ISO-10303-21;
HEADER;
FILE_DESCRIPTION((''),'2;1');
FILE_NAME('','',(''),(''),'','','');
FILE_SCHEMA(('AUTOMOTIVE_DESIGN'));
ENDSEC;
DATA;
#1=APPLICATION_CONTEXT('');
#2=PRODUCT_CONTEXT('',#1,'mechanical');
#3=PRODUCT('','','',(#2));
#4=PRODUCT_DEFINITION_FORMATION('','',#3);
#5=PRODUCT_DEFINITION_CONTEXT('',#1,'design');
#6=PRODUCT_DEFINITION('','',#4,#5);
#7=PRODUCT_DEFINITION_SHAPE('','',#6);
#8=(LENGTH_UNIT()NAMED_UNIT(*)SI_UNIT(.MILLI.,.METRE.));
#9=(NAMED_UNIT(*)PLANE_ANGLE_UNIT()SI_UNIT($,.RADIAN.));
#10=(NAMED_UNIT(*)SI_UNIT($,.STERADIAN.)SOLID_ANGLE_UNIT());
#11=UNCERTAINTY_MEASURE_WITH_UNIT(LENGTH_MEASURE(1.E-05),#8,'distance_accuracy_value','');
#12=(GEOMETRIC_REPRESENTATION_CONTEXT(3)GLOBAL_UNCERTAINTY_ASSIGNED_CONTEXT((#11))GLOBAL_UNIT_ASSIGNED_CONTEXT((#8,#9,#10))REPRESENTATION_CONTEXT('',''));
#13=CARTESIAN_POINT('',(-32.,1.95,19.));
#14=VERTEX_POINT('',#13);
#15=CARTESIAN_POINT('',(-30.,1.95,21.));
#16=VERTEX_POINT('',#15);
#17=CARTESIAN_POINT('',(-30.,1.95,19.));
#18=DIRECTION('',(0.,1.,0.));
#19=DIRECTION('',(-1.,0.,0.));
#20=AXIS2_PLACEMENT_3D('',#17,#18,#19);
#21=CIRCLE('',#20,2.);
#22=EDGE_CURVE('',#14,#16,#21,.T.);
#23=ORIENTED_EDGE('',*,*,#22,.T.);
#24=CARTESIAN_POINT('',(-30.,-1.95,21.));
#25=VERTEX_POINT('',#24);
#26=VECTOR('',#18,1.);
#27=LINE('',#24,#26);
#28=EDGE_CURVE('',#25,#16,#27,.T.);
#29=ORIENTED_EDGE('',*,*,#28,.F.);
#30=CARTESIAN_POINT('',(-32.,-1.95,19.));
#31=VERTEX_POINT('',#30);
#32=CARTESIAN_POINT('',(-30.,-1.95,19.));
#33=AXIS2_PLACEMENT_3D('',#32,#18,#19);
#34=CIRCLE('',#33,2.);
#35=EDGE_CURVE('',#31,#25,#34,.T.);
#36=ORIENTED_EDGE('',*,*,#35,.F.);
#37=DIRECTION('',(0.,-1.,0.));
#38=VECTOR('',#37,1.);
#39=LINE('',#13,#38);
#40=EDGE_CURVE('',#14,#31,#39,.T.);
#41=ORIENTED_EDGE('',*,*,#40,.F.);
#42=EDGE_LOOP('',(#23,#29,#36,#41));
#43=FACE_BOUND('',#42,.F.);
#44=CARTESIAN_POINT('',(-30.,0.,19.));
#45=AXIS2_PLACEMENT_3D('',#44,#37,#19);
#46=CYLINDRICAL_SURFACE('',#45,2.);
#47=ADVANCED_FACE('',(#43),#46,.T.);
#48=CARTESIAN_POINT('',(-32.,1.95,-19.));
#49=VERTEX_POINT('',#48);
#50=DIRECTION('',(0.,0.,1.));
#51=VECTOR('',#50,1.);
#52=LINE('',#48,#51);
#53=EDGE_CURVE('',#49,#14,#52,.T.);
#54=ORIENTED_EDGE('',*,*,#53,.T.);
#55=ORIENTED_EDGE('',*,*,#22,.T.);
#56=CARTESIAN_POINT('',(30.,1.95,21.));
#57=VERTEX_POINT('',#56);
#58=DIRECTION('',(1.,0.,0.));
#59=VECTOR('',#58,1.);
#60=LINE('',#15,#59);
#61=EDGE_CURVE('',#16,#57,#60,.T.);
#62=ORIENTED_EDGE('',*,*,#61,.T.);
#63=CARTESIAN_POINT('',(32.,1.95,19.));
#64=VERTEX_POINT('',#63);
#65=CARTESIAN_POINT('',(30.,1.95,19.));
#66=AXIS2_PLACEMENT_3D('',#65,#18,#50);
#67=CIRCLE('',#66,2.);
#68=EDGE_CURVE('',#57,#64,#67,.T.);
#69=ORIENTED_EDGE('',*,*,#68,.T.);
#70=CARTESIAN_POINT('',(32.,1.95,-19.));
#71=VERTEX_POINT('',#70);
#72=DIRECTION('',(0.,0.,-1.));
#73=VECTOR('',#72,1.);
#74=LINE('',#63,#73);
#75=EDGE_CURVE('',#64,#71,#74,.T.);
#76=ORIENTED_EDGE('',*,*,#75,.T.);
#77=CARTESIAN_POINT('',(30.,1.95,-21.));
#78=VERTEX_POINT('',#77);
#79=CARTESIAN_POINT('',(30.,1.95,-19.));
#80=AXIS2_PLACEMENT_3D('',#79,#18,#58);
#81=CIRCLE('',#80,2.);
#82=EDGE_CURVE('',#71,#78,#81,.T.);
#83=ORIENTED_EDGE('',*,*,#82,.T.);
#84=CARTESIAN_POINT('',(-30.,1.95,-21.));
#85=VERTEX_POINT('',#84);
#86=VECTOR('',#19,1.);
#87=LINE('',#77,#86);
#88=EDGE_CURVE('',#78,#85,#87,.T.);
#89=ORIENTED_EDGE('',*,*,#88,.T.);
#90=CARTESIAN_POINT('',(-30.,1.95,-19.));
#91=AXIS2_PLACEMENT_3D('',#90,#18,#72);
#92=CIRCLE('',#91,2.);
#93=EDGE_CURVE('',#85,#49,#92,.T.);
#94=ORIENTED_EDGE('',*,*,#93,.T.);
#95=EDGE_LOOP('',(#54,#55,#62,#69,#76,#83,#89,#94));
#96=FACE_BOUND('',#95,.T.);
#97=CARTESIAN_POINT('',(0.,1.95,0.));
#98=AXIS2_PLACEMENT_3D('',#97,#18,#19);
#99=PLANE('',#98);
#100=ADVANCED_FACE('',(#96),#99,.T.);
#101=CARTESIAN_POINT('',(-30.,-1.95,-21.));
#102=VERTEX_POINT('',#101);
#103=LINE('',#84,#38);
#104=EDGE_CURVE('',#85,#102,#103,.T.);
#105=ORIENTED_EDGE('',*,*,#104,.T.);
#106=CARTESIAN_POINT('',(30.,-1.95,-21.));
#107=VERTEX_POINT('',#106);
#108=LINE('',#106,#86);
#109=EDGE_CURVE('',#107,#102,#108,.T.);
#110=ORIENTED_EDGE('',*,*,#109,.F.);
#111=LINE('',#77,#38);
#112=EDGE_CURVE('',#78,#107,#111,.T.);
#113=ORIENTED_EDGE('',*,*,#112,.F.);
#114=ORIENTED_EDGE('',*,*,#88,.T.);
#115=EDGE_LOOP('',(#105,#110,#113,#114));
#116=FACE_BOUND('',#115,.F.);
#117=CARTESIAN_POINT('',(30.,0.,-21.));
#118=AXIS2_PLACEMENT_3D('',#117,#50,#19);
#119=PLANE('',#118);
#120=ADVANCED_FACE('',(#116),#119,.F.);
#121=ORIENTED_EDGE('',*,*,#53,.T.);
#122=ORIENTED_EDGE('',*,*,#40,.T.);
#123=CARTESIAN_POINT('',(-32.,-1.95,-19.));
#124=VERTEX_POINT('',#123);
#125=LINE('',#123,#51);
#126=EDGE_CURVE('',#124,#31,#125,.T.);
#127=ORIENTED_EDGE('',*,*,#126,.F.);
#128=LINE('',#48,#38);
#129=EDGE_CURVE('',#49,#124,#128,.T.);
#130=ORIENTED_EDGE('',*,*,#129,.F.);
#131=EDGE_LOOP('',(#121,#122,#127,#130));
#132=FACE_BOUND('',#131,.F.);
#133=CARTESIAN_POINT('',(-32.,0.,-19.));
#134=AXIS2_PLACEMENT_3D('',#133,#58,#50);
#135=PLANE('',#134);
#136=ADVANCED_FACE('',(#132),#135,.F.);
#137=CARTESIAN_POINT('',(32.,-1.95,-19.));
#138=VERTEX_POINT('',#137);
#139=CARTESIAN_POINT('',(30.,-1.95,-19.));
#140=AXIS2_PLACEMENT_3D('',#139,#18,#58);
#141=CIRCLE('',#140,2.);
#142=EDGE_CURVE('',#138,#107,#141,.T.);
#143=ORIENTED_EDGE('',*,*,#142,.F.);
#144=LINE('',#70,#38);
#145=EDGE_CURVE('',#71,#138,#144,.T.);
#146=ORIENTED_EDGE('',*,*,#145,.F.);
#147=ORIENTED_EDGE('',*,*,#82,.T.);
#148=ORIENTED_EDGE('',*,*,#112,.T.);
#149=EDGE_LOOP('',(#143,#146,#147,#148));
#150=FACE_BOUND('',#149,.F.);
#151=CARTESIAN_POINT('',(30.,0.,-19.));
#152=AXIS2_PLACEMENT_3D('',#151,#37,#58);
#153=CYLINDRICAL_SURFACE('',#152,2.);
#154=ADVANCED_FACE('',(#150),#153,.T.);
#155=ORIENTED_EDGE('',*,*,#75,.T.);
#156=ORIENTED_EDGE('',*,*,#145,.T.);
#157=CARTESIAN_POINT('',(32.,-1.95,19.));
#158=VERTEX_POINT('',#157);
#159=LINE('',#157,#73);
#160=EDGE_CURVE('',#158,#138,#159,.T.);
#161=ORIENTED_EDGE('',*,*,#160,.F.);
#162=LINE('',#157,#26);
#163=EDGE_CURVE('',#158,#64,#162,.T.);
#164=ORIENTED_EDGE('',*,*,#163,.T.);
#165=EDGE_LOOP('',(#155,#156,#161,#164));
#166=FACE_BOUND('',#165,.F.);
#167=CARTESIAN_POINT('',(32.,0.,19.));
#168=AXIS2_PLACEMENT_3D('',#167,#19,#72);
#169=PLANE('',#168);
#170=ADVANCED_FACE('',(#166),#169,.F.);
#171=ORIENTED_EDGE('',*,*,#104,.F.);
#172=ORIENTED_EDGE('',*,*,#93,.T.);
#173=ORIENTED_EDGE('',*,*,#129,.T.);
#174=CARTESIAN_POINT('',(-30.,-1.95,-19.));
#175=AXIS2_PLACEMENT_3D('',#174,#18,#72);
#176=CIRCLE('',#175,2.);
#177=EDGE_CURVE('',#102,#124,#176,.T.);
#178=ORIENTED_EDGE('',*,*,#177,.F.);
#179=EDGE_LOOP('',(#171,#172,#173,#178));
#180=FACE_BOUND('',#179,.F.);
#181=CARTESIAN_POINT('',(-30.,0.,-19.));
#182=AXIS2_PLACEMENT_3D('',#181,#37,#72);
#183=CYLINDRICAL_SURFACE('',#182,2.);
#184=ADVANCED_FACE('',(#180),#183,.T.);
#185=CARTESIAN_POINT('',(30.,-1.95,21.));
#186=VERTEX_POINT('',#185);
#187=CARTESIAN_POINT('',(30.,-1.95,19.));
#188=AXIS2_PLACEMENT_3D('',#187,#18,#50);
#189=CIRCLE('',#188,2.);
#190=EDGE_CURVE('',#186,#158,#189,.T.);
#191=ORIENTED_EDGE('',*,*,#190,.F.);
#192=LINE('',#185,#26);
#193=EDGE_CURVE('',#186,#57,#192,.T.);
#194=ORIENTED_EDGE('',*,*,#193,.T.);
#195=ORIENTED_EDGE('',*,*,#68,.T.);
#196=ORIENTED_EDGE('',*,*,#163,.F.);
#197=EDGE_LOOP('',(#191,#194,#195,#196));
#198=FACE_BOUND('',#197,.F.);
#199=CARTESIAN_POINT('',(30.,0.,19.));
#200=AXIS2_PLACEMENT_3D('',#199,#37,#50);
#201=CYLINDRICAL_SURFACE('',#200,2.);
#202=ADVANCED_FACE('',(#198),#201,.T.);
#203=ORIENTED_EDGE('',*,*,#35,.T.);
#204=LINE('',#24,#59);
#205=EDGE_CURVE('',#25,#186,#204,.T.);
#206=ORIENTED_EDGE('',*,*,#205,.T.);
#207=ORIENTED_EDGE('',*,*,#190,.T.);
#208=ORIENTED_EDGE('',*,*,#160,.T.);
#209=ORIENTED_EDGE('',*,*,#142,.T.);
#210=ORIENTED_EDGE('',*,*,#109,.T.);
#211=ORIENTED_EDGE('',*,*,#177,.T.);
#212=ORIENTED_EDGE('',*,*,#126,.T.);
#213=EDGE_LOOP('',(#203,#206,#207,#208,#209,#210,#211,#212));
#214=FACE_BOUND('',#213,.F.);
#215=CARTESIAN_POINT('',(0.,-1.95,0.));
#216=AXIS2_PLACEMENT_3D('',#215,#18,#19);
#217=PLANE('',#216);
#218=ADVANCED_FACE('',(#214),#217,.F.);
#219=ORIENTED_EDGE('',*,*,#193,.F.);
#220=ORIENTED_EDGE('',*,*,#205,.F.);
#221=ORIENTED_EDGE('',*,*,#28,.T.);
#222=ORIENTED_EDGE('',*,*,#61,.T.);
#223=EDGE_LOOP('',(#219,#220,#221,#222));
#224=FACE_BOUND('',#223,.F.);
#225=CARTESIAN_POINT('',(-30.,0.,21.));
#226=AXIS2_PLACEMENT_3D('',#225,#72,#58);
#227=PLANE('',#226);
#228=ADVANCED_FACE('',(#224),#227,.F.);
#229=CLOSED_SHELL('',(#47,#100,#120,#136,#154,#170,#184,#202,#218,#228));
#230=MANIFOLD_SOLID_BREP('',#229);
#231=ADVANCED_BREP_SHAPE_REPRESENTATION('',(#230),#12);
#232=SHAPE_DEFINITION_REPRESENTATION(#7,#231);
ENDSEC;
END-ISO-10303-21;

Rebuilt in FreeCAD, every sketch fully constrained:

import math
import FreeCAD as App
import Part
import Sketcher

V = App.Vector

doc = App.newDocument("Part")
body = doc.addObject("PartDesign::Body", "Body")

sketch1 = body.newObject("Sketcher::SketchObject", "Sketch")
sketch1.AttachmentSupport = (doc.getObject("XZ_Plane"), [""])
sketch1.MapMode = "FlatFace"
sketch1.addGeometry(Part.ArcOfCircle(Part.Circle(V(-30, 19, 0), V(0, 0, 1), 2), math.radians(90), math.radians(180)), False)
sketch1.addGeometry(Part.LineSegment(V(-30, 21, 0), V(30, 21, 0)), False)
sketch1.addGeometry(Part.ArcOfCircle(Part.Circle(V(30, 19, 0), V(0, 0, 1), 2), math.radians(0), math.radians(90)), False)
sketch1.addGeometry(Part.LineSegment(V(32, 19, 0), V(32, -19, 0)), False)
sketch1.addGeometry(Part.ArcOfCircle(Part.Circle(V(30, -19, 0), V(0, 0, 1), 2), math.radians(-90), math.radians(0)), False)
sketch1.addGeometry(Part.LineSegment(V(30, -21, 0), V(-30, -21, 0)), False)
sketch1.addGeometry(Part.ArcOfCircle(Part.Circle(V(-30, -19, 0), V(0, 0, 1), 2), math.radians(180), math.radians(270)), False)
sketch1.addGeometry(Part.LineSegment(V(-32, -19, 0), V(-32, 19, 0)), False)
sketch1.addConstraint(Sketcher.Constraint("Tangent", 0, 1, 1, 1))
sketch1.addConstraint(Sketcher.Constraint("Tangent", 1, 2, 2, 2))
sketch1.addConstraint(Sketcher.Constraint("Tangent", 2, 1, 3, 1))
sketch1.addConstraint(Sketcher.Constraint("Tangent", 3, 2, 4, 2))
sketch1.addConstraint(Sketcher.Constraint("Tangent", 4, 1, 5, 1))
sketch1.addConstraint(Sketcher.Constraint("Tangent", 5, 2, 6, 2))
sketch1.addConstraint(Sketcher.Constraint("Tangent", 6, 1, 7, 1))
sketch1.addConstraint(Sketcher.Constraint("Tangent", 7, 2, 0, 2))
sketch1.addConstraint(Sketcher.Constraint("Horizontal", 1))
sketch1.addConstraint(Sketcher.Constraint("Vertical", 3))
sketch1.addConstraint(Sketcher.Constraint("Horizontal", 5))
sketch1.addConstraint(Sketcher.Constraint("Vertical", 7))
sketch1.addConstraint(Sketcher.Constraint("Equal", 0, 2))
sketch1.addConstraint(Sketcher.Constraint("Equal", 2, 4))
sketch1.addConstraint(Sketcher.Constraint("Equal", 4, 6))
sketch1.addConstraint(Sketcher.Constraint("Symmetric", 0, 3, 4, 3, -1, 1))
sketch1.addConstraint(Sketcher.Constraint("Radius", 0, 2.0))
sketch1.addConstraint(Sketcher.Constraint("DistanceY", 4, 1, 1, 2, 42.0))
sketch1.addConstraint(Sketcher.Constraint("DistanceX", 1, 1, 1, 2, 60.0))
pad1 = body.newObject("PartDesign::Pad", "Pad")
pad1.Profile = sketch1
pad1.Length = 3.9
pad1.Midplane = True

doc.recompute()
